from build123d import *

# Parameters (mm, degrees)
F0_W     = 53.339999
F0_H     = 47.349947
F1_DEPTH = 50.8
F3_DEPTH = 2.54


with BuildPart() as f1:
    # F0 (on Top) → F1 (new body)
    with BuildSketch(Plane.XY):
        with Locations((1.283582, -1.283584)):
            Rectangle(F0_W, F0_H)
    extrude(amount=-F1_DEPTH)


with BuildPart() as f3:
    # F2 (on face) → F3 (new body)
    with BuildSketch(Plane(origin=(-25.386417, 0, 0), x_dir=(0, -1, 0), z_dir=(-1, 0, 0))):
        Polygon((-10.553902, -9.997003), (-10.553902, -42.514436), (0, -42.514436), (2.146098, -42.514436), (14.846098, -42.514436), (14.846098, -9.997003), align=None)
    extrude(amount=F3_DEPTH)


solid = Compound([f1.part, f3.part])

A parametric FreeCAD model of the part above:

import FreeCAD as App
import Part
import Sketcher
from FreeCAD import Vector
Q = App.Units.Quantity

doc = App.newDocument("Part")
params = doc.addObject("Spreadsheet::Sheet", "Params")
for row, (alias, value) in enumerate([
    ("sketch1_width", "2.1 in"),
    ("pad1_length", "2 in"),
    ("sketch2_width", "1 in"),
    ("pad2_length", "0.1 in"),
], start=1):
    params.set(f"A{row}", alias)
    params.set(f"B{row}", "=" + value)
    params.setAlias(f"B{row}", alias)

body = doc.addObject("PartDesign::Body", "Body")

# Sketch on XY plane
sketch1 = body.newObject("Sketcher::SketchObject", "Sketch")
sketch1.AttachmentSupport = (doc.getObject("XY_Plane"), [""])
sketch1.MapMode = "FlatFace"
sketch1.addGeometry([
    Part.LineSegment(Vector(-25.386418, 22.391389, 0), Vector(-25.386418, -24.958558, 0)),
    Part.LineSegment(Vector(-25.386418, -24.958558, 0), Vector(27.953581, -24.958558, 0)),
    Part.LineSegment(Vector(27.953581, -24.958558, 0), Vector(27.953581, 22.391389, 0)),
    Part.LineSegment(Vector(27.953581, 22.391389, 0), Vector(-25.386418, 22.391389, 0)),
], False)
sketch1.addConstraint([
    Sketcher.Constraint("Coincident", 0, 2, 1, 1),
    Sketcher.Constraint("Coincident", 1, 2, 2, 1),
    Sketcher.Constraint("Coincident", 2, 2, 3, 1),
    Sketcher.Constraint("Coincident", 3, 2, 0, 1),
    Sketcher.Constraint("Vertical", 0),
    Sketcher.Constraint("Horizontal", 1),
    Sketcher.Constraint("Vertical", 2),
    Sketcher.Constraint("Horizontal", 3),
    Sketcher.Constraint("DistanceX", 1, 1, 1, 2, Q("2.1 in")),
    Sketcher.Constraint("DistanceY", 0, 2, 0, 1, 47.349947),
    Sketcher.Constraint("DistanceX", -1, 1, 1, 2, 27.953581),
    Sketcher.Constraint("DistanceY", -1, 1, 2, 2, 22.391389),
])
sketch1.setExpression("Constraints[8]", "Params.sketch1_width")
pad1 = body.newObject("PartDesign::Pad", "Pad")
pad1.Profile = sketch1
pad1.setExpression("Length", "Params.pad1_length")
pad1.Reversed = True
body2 = doc.addObject("PartDesign::Body", "Body001")

# Sketch on YZ plane
sketch2 = body2.newObject("Sketcher::SketchObject", "Sketch001")
sketch2.AttachmentSupport = (doc.getObject("YZ_Plane001"), [""])
sketch2.MapMode = "FlatFace"
sketch2.AttachmentOffset = App.Placement(Vector(0, 0, -25.386417), App.Rotation())
sketch2.addGeometry([
    Part.LineSegment(Vector(10.553902, -9.997003, 0), Vector(10.553902, -42.514436, 0)),
    Part.LineSegment(Vector(10.553902, -42.514436, 0), Vector(-14.846098, -42.514436, 0)),
    Part.LineSegment(Vector(-14.846098, -42.514436, 0), Vector(-14.846098, -9.997003, 0)),
    Part.LineSegment(Vector(-14.846098, -9.997003, 0), Vector(10.553902, -9.997003, 0)),
], False)
sketch2.addConstraint([
    Sketcher.Constraint("Coincident", 0, 2, 1, 1),
    Sketcher.Constraint("Coincident", 1, 2, 2, 1),
    Sketcher.Constraint("Coincident", 2, 2, 3, 1),
    Sketcher.Constraint("Coincident", 3, 2, 0, 1),
    Sketcher.Constraint("Vertical", 0),
    Sketcher.Constraint("Horizontal", 1),
    Sketcher.Constraint("Vertical", 2),
    Sketcher.Constraint("Horizontal", 3),
    Sketcher.Constraint("DistanceX", 1, 2, 1, 1, Q("1 in")),
    Sketcher.Constraint("DistanceY", 0, 2, 0, 1, 32.517433),
    Sketcher.Constraint("DistanceX", -1, 1, 0, 2, 10.553902),
    Sketcher.Constraint("DistanceY", 0, 2, -1, 1, 42.514436),
])
sketch2.setExpression("Constraints[8]", "Params.sketch2_width")
pad2 = body2.newObject("PartDesign::Pad", "Pad001")
pad2.Profile = sketch2
pad2.setExpression("Length", "Params.pad2_length")
pad2.Reversed = True

doc.recompute()
